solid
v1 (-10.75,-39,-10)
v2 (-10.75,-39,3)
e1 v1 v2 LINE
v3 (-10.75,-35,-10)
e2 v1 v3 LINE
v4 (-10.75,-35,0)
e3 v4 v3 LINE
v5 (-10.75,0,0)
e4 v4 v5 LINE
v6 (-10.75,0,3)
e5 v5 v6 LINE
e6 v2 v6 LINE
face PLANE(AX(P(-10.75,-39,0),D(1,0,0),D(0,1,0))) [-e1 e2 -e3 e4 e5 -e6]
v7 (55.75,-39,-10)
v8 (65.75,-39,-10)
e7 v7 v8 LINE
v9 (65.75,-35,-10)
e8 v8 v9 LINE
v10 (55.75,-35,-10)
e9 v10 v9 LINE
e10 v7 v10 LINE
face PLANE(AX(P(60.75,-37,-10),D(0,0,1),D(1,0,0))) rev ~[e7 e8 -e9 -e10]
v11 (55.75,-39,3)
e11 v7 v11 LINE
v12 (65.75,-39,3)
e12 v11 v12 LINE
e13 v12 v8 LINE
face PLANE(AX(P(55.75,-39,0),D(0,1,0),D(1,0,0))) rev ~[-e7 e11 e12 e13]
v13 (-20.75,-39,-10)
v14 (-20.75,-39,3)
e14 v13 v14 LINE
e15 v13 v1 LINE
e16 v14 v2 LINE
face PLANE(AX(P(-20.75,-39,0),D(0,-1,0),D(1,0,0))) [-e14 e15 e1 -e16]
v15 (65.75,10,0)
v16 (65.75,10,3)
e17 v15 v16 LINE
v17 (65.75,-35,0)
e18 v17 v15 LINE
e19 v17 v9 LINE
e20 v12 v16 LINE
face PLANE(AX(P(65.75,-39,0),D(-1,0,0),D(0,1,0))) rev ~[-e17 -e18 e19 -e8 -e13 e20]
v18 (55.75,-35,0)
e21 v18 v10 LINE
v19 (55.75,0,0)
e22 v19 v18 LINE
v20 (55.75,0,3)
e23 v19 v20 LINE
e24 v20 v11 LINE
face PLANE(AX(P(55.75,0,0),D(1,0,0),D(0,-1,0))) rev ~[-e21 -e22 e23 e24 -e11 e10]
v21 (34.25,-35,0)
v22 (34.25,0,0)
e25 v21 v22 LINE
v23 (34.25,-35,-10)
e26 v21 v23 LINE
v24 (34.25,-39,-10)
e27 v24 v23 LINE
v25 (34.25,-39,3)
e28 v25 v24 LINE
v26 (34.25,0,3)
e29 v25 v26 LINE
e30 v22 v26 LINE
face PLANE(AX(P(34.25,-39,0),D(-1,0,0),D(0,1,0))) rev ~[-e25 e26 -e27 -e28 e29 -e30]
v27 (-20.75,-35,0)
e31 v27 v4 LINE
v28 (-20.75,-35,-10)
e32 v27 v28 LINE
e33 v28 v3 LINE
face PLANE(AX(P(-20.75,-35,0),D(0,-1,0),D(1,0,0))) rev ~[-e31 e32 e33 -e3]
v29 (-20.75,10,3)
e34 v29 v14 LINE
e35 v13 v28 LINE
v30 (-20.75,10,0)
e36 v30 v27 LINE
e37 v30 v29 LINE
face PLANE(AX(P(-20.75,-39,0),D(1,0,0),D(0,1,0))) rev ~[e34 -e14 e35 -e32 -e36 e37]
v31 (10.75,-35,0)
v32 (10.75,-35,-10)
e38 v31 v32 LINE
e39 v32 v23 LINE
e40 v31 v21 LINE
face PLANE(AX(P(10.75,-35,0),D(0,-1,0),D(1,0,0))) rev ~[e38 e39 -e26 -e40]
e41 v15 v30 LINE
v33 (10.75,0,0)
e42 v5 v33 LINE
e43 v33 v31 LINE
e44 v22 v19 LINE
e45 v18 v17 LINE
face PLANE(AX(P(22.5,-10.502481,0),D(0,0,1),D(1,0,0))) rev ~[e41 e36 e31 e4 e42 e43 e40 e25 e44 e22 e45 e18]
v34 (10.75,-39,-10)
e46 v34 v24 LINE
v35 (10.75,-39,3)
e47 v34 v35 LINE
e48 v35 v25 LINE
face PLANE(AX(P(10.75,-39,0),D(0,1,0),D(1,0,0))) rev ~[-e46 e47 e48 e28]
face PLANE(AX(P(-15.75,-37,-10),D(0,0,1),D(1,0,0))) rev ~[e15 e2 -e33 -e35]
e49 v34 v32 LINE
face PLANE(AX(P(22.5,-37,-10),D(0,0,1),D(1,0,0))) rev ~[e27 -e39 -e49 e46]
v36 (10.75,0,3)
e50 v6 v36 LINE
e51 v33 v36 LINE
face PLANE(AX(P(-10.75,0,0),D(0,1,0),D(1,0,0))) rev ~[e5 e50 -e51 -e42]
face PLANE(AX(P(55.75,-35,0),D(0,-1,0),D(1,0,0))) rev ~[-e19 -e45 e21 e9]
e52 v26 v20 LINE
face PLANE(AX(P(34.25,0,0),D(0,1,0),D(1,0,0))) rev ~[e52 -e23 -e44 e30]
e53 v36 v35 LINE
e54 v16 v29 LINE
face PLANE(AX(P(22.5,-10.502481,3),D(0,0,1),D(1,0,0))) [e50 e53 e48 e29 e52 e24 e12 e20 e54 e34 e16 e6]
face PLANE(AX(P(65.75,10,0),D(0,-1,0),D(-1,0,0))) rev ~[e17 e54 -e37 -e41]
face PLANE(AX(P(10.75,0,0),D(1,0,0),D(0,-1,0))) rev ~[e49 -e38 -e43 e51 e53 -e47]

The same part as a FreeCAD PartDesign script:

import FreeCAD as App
import Part
import Sketcher

V = App.Vector

doc = App.newDocument("Part")
params = doc.addObject("Spreadsheet::Sheet", "Params")
for row, (alias, value) in enumerate([
    ("sketch1_width", "10 mm"),
    ("sketch1_height", "39 mm"),
    ("sketch1_height2", "49 mm"),
    ("sketch1_width2", "21.5 mm"),
    ("sketch1_width3", "23.5 mm"),
    ("pad1_length", "3 mm"),
    ("sketch2_width", "10 mm"),
    ("sketch2_height", "4 mm"),
    ("sketch2_width2", "23.5 mm"),
    ("pad2_length", "10 mm"),
], start=1):
    params.set(f"A{row}", alias)
    params.set(f"B{row}", "=" + value)
    params.setAlias(f"B{row}", alias)

body = doc.addObject("PartDesign::Body", "Body")

sketch1 = body.newObject("Sketcher::SketchObject", "Sketch")
sketch1.AttachmentSupport = (doc.getObject("XY_Plane"), [""])
sketch1.MapMode = "FlatFace"
sketch1.addGeometry(Part.LineSegment(V(-10.75, 0, 0), V(10.75, 0, 0)), False)
sketch1.addGeometry(Part.LineSegment(V(10.75, 0, 0), V(10.75, -39, 0)), False)
sketch1.addGeometry(Part.LineSegment(V(10.75, -39, 0), V(34.25, -39, 0)), False)
sketch1.addGeometry(Part.LineSegment(V(34.25, -39, 0), V(34.25, 0, 0)), False)
sketch1.addGeometry(Part.LineSegment(V(34.25, 0, 0), V(55.75, 0, 0)), False)
sketch1.addGeometry(Part.LineSegment(V(55.75, 0, 0), V(55.75, -39, 0)), False)
sketch1.addGeometry(Part.LineSegment(V(55.75, -39, 0), V(65.75, -39, 0)), False)
sketch1.addGeometry(Part.LineSegment(V(65.75, -39, 0), V(65.75, 10, 0)), False)
sketch1.addGeometry(Part.LineSegment(V(65.75, 10, 0), V(-20.75, 10, 0)), False)
sketch1.addGeometry(Part.LineSegment(V(-20.75, 10, 0), V(-20.75, -39, 0)), False)
sketch1.addGeometry(Part.LineSegment(V(-20.75, -39, 0), V(-10.75, -39, 0)), False)
sketch1.addGeometry(Part.LineSegment(V(-10.75, -39, 0), V(-10.75, 0, 0)), False)
sketch1.addConstraint(Sketcher.Constraint("Coincident", 0, 2, 1, 1))
sketch1.addConstraint(Sketcher.Constraint("Coincident", 1, 2, 2, 1))
sketch1.addConstraint(Sketcher.Constraint("Coincident", 2, 2, 3, 1))
sketch1.addConstraint(Sketcher.Constraint("Coincident", 3, 2, 4, 1))
sketch1.addConstraint(Sketcher.Constraint("Coincident", 4, 2, 5, 1))
sketch1.addConstraint(Sketcher.Constraint("Coincident", 5, 2, 6, 1))
sketch1.addConstraint(Sketcher.Constraint("Coincident", 6, 2, 7, 1))
sketch1.addConstraint(Sketcher.Constraint("Coincident", 7, 2, 8, 1))
sketch1.addConstraint(Sketcher.Constraint("Coincident", 8, 2, 9, 1))
sketch1.addConstraint(Sketcher.Constraint("Coincident", 9, 2, 10, 1))
sketch1.addConstraint(Sketcher.Constraint("Coincident", 10, 2, 11, 1))
sketch1.addConstraint(Sketcher.Constraint("Coincident", 11, 2, 0, 1))
sketch1.addConstraint(Sketcher.Constraint("Horizontal", 0))
sketch1.addConstraint(Sketcher.Constraint("Vertical", 1))
sketch1.addConstraint(Sketcher.Constraint("Horizontal", 2))
sketch1.addConstraint(Sketcher.Constraint("Vertical", 3))
sketch1.addConstraint(Sketcher.Constraint("Horizontal", 4))
sketch1.addConstraint(Sketcher.Constraint("Vertical", 5))
sketch1.addConstraint(Sketcher.Constraint("Horizontal", 6))
sketch1.addConstraint(Sketcher.Constraint("Vertical", 7))
sketch1.addConstraint(Sketcher.Constraint("Horizontal", 8))
sketch1.addConstraint(Sketcher.Constraint("Vertical", 9))
sketch1.addConstraint(Sketcher.Constraint("Horizontal", 10))
sketch1.addConstraint(Sketcher.Constraint("Vertical", 11))
sketch1.addConstraint(Sketcher.Constraint("Symmetric", 0, 2, 11, 2, -1, 1))
sketch1.addConstraint(Sketcher.Constraint("PointOnObject", 3, 2, -1))
sketch1.addConstraint(Sketcher.Constraint("Horizontal", 2, 2, 5, 2))
sketch1.addConstraint(Sketcher.Constraint("Horizontal", 6, 2, 9, 2))
sketch1.addConstraint(Sketcher.Constraint("Equal", 0, 4))
sketch1.addConstraint(Sketcher.Constraint("Equal", 6, 10))
sketch1.addConstraint(Sketcher.Constraint("DistanceX", 6, 1, 6, 2, 10.0))
sketch1.addConstraint(Sketcher.Constraint("DistanceY", 1, 2, 1, 1, 39.0))
sketch1.addConstraint(Sketcher.Constraint("DistanceY", 7, 1, 7, 2, 49.0))
sketch1.addConstraint(Sketcher.Constraint("DistanceX", 0, 1, 0, 2, 21.5))
sketch1.addConstraint(Sketcher.Constraint("DistanceX", 2, 1, 2, 2, 23.5))
sketch1.setExpression("Constraints[30]", "Params.sketch1_width")
sketch1.setExpression("Constraints[31]", "Params.sketch1_height")
sketch1.setExpression("Constraints[32]", "Params.sketch1_height2")
sketch1.setExpression("Constraints[33]", "Params.sketch1_width2")
sketch1.setExpression("Constraints[34]", "Params.sketch1_width3")
pad1 = body.newObject("PartDesign::Pad", "Pad")
pad1.Profile = sketch1
pad1.setExpression("Length", "Params.pad1_length")

sketch2 = body.newObject("Sketcher::SketchObject", "Sketch001")
sketch2.AttachmentSupport = (doc.getObject("XY_Plane"), [""])
sketch2.MapMode = "FlatFace"
sketch2.addGeometry(Part.LineSegment(V(-20.75, -35, 0), V(-20.75, -39, 0)), False)
sketch2.addGeometry(Part.LineSegment(V(-20.75, -39, 0), V(-10.75, -39, 0)), False)
sketch2.addGeometry(Part.LineSegment(V(-10.75, -39, 0), V(-10.75, -35, 0)), False)
sketch2.addGeometry(Part.LineSegment(V(-10.75, -35, 0), V(-20.75, -35, 0)), False)
sketch2.addGeometry(Part.LineSegment(V(10.75, -35, 0), V(10.75, -39, 0)), False)
sketch2.addGeometry(Part.LineSegment(V(10.75, -39, 0), V(34.25, -39, 0)), False)
sketch2.addGeometry(Part.LineSegment(V(34.25, -39, 0), V(34.25, -35, 0)), False)
sketch2.addGeometry(Part.LineSegment(V(34.25, -35, 0), V(10.75, -35, 0)), False)
sketch2.addGeometry(Part.LineSegment(V(55.75, -35, 0), V(55.75, -39, 0)), False)
sketch2.addGeometry(Part.LineSegment(V(55.75, -39, 0), V(65.75, -39, 0)), False)
sketch2.addGeometry(Part.LineSegment(V(65.75, -39, 0), V(65.75, -35, 0)), False)
sketch2.addGeometry(Part.LineSegment(V(65.75, -35, 0), V(55.75, -35, 0)), False)
sketch2.addConstraint(Sketcher.Constraint("Coincident", 0, 2, 1, 1))
sketch2.addConstraint(Sketcher.Constraint("Coincident", 1, 2, 2, 1))
sketch2.addConstraint(Sketcher.Constraint("Coincident", 2, 2, 3, 1))
sketch2.addConstraint(Sketcher.Constraint("Coincident", 3, 2, 0, 1))
sketch2.addConstraint(Sketcher.Constraint("Coincident", 4, 2, 5, 1))
sketch2.addConstraint(Sketcher.Constraint("Coincident", 5, 2, 6, 1))
sketch2.addConstraint(Sketcher.Constraint("Coincident", 6, 2, 7, 1))
sketch2.addConstraint(Sketcher.Constraint("Coincident", 7, 2, 4, 1))
sketch2.addConstraint(Sketcher.Constraint("Coincident", 8, 2, 9, 1))
sketch2.addConstraint(Sketcher.Constraint("Coincident", 9, 2, 10, 1))
sketch2.addConstraint(Sketcher.Constraint("Coincident", 10, 2, 11, 1))
sketch2.addConstraint(Sketcher.Constraint("Coincident", 11, 2, 8, 1))
sketch2.addConstraint(Sketcher.Constraint("Vertical", 0))
sketch2.addConstraint(Sketcher.Constraint("Horizontal", 1))
sketch2.addConstraint(Sketcher.Constraint("Vertical", 2))
sketch2.addConstraint(Sketcher.Constraint("Horizontal", 3))
sketch2.addConstraint(Sketcher.Constraint("Vertical", 4))
sketch2.addConstraint(Sketcher.Constraint("Horizontal", 5))
sketch2.addConstraint(Sketcher.Constraint("Vertical", 6))
sketch2.addConstraint(Sketcher.Constraint("Horizontal", 7))
sketch2.addConstraint(Sketcher.Constraint("Vertical", 8))
sketch2.addConstraint(Sketcher.Constraint("Horizontal", 9))
sketch2.addConstraint(Sketcher.Constraint("Vertical", 10))
sketch2.addConstraint(Sketcher.Constraint("Horizontal", 11))
sketch2.addConstraint(Sketcher.Constraint("Symmetric", 1, 2, 4, 2, -2))
sketch2.addConstraint(Sketcher.Constraint("Horizontal", 3, 2, 6, 2))
sketch2.addConstraint(Sketcher.Constraint("Horizontal", 5, 2, 8, 2))
sketch2.addConstraint(Sketcher.Constraint("Horizontal", 7, 2, 10, 2))
sketch2.addConstraint(Sketcher.Constraint("Equal", 3, 9))
sketch2.addConstraint(Sketcher.Constraint("DistanceX", 1, 1, 1, 2, 10.0))
sketch2.addConstraint(Sketcher.Constraint("DistanceY", 0, 2, 0, 1, 4.0))
sketch2.addConstraint(Sketcher.Constraint("DistanceX", 5, 1, 5, 2, 23.5))
sketch2.addConstraint(Sketcher.Constraint("DistanceY", 0, 2, -1, 1, 39.0))
sketch2.addConstraint(Sketcher.Constraint("DistanceX", 1, 2, 5, 2, 45.0))
sketch2.addConstraint(Sketcher.Constraint("DistanceX", 4, 2, 8, 2, 45.0))
sketch2.setExpression("Constraints[29]", "Params.sketch2_width")
sketch2.setExpression("Constraints[30]", "Params.sketch2_height")
sketch2.setExpression("Constraints[31]", "Params.sketch2_width2")
pad2 = body.newObject("PartDesign::Pad", "Pad001")
pad2.Profile = sketch2
pad2.setExpression("Length", "Params.pad2_length")
pad2.Reversed = True

doc.recompute()
